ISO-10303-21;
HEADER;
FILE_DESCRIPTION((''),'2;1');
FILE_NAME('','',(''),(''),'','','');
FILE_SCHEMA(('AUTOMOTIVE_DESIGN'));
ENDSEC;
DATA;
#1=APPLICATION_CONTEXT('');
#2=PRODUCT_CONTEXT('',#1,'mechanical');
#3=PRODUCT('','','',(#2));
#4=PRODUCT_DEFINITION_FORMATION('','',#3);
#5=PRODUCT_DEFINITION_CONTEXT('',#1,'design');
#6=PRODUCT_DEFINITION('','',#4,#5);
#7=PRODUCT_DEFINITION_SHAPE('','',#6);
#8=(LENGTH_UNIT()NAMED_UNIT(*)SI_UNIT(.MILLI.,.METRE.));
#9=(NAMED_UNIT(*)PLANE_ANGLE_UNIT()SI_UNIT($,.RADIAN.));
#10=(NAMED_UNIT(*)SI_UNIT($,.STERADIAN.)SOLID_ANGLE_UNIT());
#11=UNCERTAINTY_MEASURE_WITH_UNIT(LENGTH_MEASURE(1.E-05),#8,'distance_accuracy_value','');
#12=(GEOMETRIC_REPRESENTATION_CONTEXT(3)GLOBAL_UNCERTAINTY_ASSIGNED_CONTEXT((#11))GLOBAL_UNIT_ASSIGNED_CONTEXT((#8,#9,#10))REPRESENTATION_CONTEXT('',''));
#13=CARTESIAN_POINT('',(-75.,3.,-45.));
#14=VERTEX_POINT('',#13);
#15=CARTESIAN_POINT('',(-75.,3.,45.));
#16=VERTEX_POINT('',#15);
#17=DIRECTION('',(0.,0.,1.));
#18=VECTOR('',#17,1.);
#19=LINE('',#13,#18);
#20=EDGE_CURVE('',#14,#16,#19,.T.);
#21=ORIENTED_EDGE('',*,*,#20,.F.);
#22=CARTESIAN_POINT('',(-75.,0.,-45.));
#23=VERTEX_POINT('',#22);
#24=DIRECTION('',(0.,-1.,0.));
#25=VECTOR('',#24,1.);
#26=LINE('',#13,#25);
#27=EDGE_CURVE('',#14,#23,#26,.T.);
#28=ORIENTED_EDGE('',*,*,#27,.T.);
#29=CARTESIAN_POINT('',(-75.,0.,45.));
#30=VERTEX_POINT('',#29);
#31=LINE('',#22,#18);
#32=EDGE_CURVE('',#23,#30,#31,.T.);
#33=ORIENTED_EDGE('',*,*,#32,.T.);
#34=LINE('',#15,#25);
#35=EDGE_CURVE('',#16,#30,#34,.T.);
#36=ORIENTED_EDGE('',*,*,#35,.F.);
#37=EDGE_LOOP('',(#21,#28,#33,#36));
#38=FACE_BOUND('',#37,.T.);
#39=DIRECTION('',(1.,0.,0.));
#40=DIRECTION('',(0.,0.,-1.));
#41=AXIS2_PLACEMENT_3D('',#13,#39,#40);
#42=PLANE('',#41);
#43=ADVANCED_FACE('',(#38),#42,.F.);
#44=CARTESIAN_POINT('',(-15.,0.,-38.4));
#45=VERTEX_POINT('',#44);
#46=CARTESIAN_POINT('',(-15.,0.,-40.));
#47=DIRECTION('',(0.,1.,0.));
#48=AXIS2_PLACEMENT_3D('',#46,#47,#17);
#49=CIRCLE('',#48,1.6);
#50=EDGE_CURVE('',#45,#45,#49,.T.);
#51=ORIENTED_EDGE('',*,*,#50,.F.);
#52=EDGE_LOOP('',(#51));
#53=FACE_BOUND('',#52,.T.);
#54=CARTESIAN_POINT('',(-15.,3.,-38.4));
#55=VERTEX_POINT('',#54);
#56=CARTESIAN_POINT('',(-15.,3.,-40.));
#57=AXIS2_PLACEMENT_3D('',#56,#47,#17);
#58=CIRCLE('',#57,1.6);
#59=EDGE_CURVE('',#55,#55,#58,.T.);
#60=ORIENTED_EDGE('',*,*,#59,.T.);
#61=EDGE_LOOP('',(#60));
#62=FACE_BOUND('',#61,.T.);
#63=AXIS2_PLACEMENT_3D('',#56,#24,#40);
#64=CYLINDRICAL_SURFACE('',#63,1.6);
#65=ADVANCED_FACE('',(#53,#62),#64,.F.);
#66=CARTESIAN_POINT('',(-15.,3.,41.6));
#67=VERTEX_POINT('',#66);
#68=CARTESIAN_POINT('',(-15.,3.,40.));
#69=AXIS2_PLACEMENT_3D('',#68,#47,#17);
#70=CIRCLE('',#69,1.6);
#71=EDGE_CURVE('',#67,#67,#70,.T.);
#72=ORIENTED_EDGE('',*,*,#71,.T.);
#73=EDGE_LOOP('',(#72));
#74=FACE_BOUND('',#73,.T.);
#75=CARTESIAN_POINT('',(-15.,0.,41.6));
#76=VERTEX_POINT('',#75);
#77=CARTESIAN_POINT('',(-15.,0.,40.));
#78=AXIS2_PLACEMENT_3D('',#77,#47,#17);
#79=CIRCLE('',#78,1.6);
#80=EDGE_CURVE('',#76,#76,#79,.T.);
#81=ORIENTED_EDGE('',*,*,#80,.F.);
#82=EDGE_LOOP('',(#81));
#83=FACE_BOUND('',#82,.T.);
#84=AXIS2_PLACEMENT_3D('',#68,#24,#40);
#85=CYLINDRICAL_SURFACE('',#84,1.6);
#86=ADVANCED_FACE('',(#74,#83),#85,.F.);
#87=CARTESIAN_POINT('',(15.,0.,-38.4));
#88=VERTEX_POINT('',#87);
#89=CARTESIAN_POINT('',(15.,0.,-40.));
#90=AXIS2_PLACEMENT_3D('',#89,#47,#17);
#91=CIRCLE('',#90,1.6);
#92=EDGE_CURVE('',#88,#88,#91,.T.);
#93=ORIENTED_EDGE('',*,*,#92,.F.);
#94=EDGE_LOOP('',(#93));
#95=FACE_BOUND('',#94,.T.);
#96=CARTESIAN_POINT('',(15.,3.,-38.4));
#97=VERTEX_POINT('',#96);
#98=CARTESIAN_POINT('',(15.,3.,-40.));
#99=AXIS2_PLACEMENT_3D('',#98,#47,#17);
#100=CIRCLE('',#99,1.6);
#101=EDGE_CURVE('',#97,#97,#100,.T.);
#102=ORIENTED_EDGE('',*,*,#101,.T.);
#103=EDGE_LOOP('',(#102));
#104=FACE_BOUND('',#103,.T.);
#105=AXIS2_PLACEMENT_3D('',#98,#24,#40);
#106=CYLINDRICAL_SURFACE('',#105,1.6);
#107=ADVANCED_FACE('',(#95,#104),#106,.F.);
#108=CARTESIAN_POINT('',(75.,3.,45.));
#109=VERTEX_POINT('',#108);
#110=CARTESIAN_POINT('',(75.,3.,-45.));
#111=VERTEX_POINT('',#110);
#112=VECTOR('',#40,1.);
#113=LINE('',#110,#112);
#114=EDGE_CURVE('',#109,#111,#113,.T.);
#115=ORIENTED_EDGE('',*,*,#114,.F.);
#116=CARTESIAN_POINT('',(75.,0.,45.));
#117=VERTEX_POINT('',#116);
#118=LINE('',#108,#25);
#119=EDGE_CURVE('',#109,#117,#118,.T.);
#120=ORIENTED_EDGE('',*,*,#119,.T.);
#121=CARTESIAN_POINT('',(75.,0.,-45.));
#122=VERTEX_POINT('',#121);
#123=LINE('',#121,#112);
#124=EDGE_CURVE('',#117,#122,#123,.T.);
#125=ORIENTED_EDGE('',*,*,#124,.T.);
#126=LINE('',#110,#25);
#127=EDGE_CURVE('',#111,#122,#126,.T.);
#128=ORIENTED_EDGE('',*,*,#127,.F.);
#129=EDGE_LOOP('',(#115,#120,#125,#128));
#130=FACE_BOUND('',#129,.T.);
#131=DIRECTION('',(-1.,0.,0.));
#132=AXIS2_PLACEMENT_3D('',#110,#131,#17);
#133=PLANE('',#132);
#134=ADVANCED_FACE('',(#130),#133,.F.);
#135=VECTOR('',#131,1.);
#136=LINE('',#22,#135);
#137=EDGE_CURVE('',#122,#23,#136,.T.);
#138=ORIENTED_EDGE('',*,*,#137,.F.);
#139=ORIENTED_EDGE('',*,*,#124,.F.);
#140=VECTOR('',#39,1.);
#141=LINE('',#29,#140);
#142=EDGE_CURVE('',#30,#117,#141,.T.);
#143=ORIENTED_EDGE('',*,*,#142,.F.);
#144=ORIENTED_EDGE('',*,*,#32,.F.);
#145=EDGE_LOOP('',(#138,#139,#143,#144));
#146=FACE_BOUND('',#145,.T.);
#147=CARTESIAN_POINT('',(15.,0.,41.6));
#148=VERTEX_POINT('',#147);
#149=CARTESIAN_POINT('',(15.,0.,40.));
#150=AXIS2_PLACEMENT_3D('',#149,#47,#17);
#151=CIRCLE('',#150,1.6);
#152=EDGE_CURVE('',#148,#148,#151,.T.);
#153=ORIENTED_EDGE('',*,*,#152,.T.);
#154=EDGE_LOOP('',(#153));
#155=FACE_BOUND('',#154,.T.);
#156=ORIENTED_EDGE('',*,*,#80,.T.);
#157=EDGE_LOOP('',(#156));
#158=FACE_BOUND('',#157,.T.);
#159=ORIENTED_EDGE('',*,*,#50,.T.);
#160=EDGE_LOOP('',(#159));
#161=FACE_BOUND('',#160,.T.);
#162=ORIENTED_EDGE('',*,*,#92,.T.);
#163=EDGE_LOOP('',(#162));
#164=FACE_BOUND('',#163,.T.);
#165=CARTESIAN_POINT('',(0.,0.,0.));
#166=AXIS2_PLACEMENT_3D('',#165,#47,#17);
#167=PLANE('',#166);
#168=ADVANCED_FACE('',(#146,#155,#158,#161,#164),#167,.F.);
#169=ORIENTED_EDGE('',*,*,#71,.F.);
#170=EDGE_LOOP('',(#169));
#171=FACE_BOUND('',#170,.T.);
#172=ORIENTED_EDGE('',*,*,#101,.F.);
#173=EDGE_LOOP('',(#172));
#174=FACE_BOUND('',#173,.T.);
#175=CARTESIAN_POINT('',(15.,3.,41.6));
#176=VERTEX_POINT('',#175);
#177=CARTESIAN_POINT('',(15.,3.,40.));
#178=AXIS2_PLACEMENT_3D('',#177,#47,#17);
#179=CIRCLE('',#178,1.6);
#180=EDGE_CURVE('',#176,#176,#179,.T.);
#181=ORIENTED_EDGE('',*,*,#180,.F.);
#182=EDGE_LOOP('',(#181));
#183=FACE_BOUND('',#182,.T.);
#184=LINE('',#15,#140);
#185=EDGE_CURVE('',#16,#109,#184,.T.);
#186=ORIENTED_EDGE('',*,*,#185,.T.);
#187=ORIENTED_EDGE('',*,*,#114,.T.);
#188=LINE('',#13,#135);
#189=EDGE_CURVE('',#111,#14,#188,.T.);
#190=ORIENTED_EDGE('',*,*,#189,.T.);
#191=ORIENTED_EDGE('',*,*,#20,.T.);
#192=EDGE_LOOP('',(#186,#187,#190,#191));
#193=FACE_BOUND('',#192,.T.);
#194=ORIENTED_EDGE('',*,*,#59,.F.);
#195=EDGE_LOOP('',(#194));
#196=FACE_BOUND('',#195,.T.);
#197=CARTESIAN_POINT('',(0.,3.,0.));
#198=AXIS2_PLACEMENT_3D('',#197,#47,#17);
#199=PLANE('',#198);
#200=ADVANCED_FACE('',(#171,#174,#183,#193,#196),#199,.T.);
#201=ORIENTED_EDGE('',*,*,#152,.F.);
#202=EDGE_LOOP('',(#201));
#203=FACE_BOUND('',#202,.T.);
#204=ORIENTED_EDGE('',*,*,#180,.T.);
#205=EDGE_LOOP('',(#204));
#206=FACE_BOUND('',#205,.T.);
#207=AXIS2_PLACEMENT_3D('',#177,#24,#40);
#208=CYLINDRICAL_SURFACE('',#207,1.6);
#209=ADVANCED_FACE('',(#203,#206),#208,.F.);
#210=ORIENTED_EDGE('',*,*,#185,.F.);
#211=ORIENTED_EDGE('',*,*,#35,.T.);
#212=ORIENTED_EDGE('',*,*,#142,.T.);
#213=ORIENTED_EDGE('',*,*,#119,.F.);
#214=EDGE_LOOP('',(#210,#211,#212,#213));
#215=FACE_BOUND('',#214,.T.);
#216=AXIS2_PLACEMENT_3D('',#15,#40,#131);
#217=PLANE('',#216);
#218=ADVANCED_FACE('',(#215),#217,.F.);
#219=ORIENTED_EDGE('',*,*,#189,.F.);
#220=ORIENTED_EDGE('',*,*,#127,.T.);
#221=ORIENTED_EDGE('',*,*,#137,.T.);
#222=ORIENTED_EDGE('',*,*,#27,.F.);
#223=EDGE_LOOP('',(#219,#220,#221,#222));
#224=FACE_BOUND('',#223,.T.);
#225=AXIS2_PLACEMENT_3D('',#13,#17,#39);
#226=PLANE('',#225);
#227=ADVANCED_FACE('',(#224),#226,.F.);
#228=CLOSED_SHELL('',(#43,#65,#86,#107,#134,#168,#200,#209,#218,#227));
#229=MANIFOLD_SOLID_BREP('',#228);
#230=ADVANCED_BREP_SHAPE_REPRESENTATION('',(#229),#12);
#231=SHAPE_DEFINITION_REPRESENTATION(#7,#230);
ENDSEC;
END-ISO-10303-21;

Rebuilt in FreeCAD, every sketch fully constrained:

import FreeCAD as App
import Part
import Sketcher

V = App.Vector


def add_polygon(sketch, points):
    """Adds a closed chain of lines whose ends are joined by coincident constraints."""
    first, n = sketch.GeometryCount, len(points)
    for a, b in zip(points, points[1:] + points[:1]):
        sketch.addGeometry(Part.LineSegment(App.Vector(*a, 0), App.Vector(*b, 0)), False)
    for i in range(n):
        sketch.addConstraint(Sketcher.Constraint("Coincident", first + i, 2, first + (i + 1) % n, 1))

doc = App.newDocument("Part")
body = doc.addObject("PartDesign::Body", "Body")

sketch1 = body.newObject("Sketcher::SketchObject", "Sketch")
sketch1.AttachmentSupport = (doc.getObject("XZ_Plane"), [""])
sketch1.MapMode = "FlatFace"
add_polygon(sketch1, [(-75, -45), (-75, 45), (75, 45), (75, -45)])
sketch1.addGeometry(Part.Circle(V(-15, 40, 0), V(0, 0, 1), 1.6), False)
sketch1.addGeometry(Part.Circle(V(15, 40, 0), V(0, 0, 1), 1.6), False)
sketch1.addGeometry(Part.Circle(V(-15, -40, 0), V(0, 0, 1), 1.6), False)
sketch1.addGeometry(Part.Circle(V(15, -40, 0), V(0, 0, 1), 1.6), False)
sketch1.addConstraint(Sketcher.Constraint("Vertical", 0))
sketch1.addConstraint(Sketcher.Constraint("Horizontal", 1))
sketch1.addConstraint(Sketcher.Constraint("Vertical", 2))
sketch1.addConstraint(Sketcher.Constraint("Horizontal", 3))
sketch1.addConstraint(Sketcher.Constraint("Equal", 4, 5))
sketch1.addConstraint(Sketcher.Constraint("Equal", 5, 6))
sketch1.addConstraint(Sketcher.Constraint("Equal", 6, 7))
sketch1.addConstraint(Sketcher.Constraint("Symmetric", 5, 3, 6, 3, -1, 1))
sketch1.addConstraint(Sketcher.Constraint("Symmetric", 4, 3, 7, 3, -1, 1))
sketch1.addConstraint(Sketcher.Constraint("Symmetric", 0, 2, 2, 2, -1, 1))
sketch1.addConstraint(Sketcher.Constraint("Symmetric", 4, 3, 5, 3, -2))
sketch1.addConstraint(Sketcher.Constraint("Diameter", 4, 3.2))
sketch1.addConstraint(Sketcher.Constraint("DistanceX", 1, 1, 1, 2, 150.0))
sketch1.addConstraint(Sketcher.Constraint("DistanceY", 0, 1, 0, 2, 90.0))
sketch1.addConstraint(Sketcher.Constraint("DistanceX", 4, 3, -1, 1, 15.0))
sketch1.addConstraint(Sketcher.Constraint("DistanceY", -1, 1, 4, 3, 40.0))
pad1 = body.newObject("PartDesign::Pad", "Pad")
pad1.Profile = sketch1
pad1.Length = 3
pad1.Reversed = True

doc.recompute()
